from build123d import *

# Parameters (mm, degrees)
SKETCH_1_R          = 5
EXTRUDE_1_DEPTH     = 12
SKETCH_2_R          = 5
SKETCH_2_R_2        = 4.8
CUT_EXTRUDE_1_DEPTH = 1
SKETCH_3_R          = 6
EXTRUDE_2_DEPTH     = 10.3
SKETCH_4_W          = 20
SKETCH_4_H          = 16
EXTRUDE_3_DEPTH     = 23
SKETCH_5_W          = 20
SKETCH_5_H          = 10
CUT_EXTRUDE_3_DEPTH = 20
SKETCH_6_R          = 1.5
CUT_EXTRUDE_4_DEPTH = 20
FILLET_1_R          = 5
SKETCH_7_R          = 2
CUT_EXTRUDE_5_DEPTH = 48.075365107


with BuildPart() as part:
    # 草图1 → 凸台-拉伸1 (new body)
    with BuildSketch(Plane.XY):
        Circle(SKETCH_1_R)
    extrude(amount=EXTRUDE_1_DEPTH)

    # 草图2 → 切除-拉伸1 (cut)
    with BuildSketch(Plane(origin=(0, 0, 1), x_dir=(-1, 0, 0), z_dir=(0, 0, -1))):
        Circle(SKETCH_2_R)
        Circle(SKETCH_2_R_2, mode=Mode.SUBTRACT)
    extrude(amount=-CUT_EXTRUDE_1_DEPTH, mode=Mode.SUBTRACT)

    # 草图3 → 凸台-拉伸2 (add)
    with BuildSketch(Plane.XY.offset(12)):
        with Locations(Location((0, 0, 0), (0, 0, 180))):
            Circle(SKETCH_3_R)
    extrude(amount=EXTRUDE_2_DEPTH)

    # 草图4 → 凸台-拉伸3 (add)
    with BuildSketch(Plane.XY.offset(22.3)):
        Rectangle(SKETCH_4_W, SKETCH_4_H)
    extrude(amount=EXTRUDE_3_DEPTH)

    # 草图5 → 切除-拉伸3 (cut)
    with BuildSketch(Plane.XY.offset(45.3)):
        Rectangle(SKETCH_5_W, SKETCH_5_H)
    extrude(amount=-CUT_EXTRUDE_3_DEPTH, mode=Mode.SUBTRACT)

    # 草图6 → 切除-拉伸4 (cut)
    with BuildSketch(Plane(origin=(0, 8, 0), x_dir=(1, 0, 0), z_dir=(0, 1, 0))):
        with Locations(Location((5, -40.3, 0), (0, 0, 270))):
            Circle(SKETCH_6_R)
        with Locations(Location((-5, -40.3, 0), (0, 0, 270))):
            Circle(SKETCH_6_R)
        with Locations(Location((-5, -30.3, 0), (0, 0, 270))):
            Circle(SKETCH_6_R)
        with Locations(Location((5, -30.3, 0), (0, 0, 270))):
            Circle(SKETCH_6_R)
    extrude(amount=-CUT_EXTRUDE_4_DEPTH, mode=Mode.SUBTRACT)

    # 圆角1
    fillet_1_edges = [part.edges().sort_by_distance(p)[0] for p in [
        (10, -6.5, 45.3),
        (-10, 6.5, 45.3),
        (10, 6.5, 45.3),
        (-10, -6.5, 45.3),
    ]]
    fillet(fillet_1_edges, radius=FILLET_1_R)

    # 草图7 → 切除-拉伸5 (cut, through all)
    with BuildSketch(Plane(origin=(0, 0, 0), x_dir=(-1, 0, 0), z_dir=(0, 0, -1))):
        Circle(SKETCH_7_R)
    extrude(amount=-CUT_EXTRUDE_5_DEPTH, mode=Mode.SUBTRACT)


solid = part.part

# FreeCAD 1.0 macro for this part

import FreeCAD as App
import Part
import Sketcher
Q = App.Units.Quantity


def edges_at(feature, points):
    """Names of the edges that pass closest to the given points."""
    edges = feature.Shape.Edges
    near = lambda p: min(range(len(edges)), key=lambda i: edges[i].distToShape(Part.Vertex(*p))[0])
    return sorted({f"Edge{near(p) + 1}" for p in points})


def add_polygon(sketch, points):
    """Adds a closed chain of lines whose ends are joined by coincident constraints."""
    first, n = sketch.GeometryCount, len(points)
    for a, b in zip(points, points[1:] + points[:1]):
        sketch.addGeometry(Part.LineSegment(App.Vector(*a, 0), App.Vector(*b, 0)), False)
    for i in range(n):
        sketch.addConstraint(Sketcher.Constraint("Coincident", first + i, 2, first + (i + 1) % n, 1))

doc = App.newDocument("Part")
params = doc.addObject("Spreadsheet::Sheet", "Params")
for row, (alias, value) in enumerate([
    ("sketch1_diameter", "10 mm"),
    ("pad1_length", "12 mm"),
    ("sketch2_diameter", "10 mm"),
    ("sketch2_diameter2", "9.6 mm"),
    ("pocket1_length", "1 mm"),
    ("sketch3_diameter", "12 mm"),
    ("pad2_length", "10.3 mm"),
    ("sketch4_width", "20 mm"),
    ("sketch4_height", "16 mm"),
    ("pad3_length", "23 mm"),
    ("sketch5_width", "20 mm"),
    ("sketch5_height", "10 mm"),
    ("pocket2_length", "20 mm"),
    ("sketch6_diameter", "3 mm"),
    ("pocket3_length", "20 mm"),
    ("fillet_radius", "5 mm"),
    ("sketch7_diameter", "4 mm"),
], start=1):
    params.set(f"A{row}", alias)
    params.set(f"B{row}", "=" + value)
    params.setAlias(f"B{row}", alias)

body = doc.addObject("PartDesign::Body", "Body")

sketch1 = body.newObject("Sketcher::SketchObject", "Sketch")
sketch1.AttachmentSupport = (doc.getObject("XY_Plane"), [""])
sketch1.MapMode = "FlatFace"
sketch1.addGeometry(Part.Circle(App.Vector(0, 0, 0), App.Vector(0, 0, 1), 5), False)
sketch1.addConstraint([
    Sketcher.Constraint("Coincident", 0, 3, -1, 1),
    Sketcher.Constraint("Diameter", 0, Q("10 mm")),
])
sketch1.setExpression("Constraints[1]", "Params.sketch1_diameter")
pad1 = body.newObject("PartDesign::Pad", "Pad")
pad1.Profile = sketch1
pad1.setExpression("Length", "Params.pad1_length")

sketch2 = body.newObject("Sketcher::SketchObject", "Sketch001")
sketch2.AttachmentSupport = (doc.getObject("XY_Plane"), [""])
sketch2.MapMode = "FlatFace"
sketch2.AttachmentOffset = App.Placement(App.Vector(0, 0, 1), App.Rotation())
sketch2.addGeometry([
    Part.Circle(App.Vector(0, 0, 0), App.Vector(0, 0, 1), 5),
    Part.Circle(App.Vector(0, 0, 0), App.Vector(0, 0, 1), 4.8),
], False)
sketch2.addConstraint([
    Sketcher.Constraint("Coincident", 0, 3, -1, 1),
    Sketcher.Constraint("Coincident", 1, 3, -1, 1),
    Sketcher.Constraint("Diameter", 0, Q("10 mm")),
    Sketcher.Constraint("Diameter", 1, Q("9.6 mm")),
])
sketch2.setExpression("Constraints[2]", "Params.sketch2_diameter")
sketch2.setExpression("Constraints[3]", "Params.sketch2_diameter2")
pocket1 = body.newObject("PartDesign::Pocket", "Pocket")
pocket1.Profile = sketch2
pocket1.setExpression("Length", "Params.pocket1_length")
pocket1.Reversed = True

sketch3 = body.newObject("Sketcher::SketchObject", "Sketch002")
sketch3.AttachmentSupport = (doc.getObject("XY_Plane"), [""])
sketch3.MapMode = "FlatFace"
sketch3.AttachmentOffset = App.Placement(App.Vector(0, 0, 12), App.Rotation())
sketch3.addGeometry(Part.Circle(App.Vector(0, 0, 0), App.Vector(0, 0, 1), 6), False)
sketch3.addConstraint([
    Sketcher.Constraint("Coincident", 0, 3, -1, 1),
    Sketcher.Constraint("Diameter", 0, Q("12 mm")),
])
sketch3.setExpression("Constraints[1]", "Params.sketch3_diameter")
pad2 = body.newObject("PartDesign::Pad", "Pad001")
pad2.Profile = sketch3
pad2.setExpression("Length", "Params.pad2_length")

sketch4 = body.newObject("Sketcher::SketchObject", "Sketch003")
sketch4.AttachmentSupport = (doc.getObject("XY_Plane"), [""])
sketch4.MapMode = "FlatFace"
sketch4.AttachmentOffset = App.Placement(App.Vector(0, 0, 22.3), App.Rotation())
add_polygon(sketch4, [(-10, 8), (-10, -8), (10, -8), (10, 8)])
sketch4.addConstraint([
    Sketcher.Constraint("Vertical", 0),
    Sketcher.Constraint("Horizontal", 1),
    Sketcher.Constraint("Vertical", 2),
    Sketcher.Constraint("Horizontal", 3),
    Sketcher.Constraint("Symmetric", 0, 2, 2, 2, -1, 1),
    Sketcher.Constraint("DistanceX", 1, 1, 1, 2, Q("20 mm")),
    Sketcher.Constraint("DistanceY", 0, 2, 0, 1, Q("16 mm")),
])
sketch4.setExpression("Constraints[9]", "Params.sketch4_width")
sketch4.setExpression("Constraints[10]", "Params.sketch4_height")
pad3 = body.newObject("PartDesign::Pad", "Pad002")
pad3.Profile = sketch4
pad3.setExpression("Length", "Params.pad3_length")

sketch5 = body.newObject("Sketcher::SketchObject", "Sketch004")
sketch5.AttachmentSupport = (doc.getObject("XY_Plane"), [""])
sketch5.MapMode = "FlatFace"
sketch5.AttachmentOffset = App.Placement(App.Vector(0, 0, 45.3), App.Rotation())
add_polygon(sketch5, [(-10, 5), (-10, -5), (10, -5), (10, 5)])
sketch5.addConstraint([
    Sketcher.Constraint("Vertical", 0),
    Sketcher.Constraint("Horizontal", 1),
    Sketcher.Constraint("Vertical", 2),
    Sketcher.Constraint("Horizontal", 3),
    Sketcher.Constraint("Symmetric", 0, 2, 2, 2, -1, 1),
    Sketcher.Constraint("DistanceX", 1, 1, 1, 2, Q("20 mm")),
    Sketcher.Constraint("DistanceY", 0, 2, 0, 1, Q("10 mm")),
])
sketch5.setExpression("Constraints[9]", "Params.sketch5_width")
sketch5.setExpression("Constraints[10]", "Params.sketch5_height")
pocket2 = body.newObject("PartDesign::Pocket", "Pocket001")
pocket2.Profile = sketch5
pocket2.setExpression("Length", "Params.pocket2_length")

sketch6 = body.newObject("Sketcher::SketchObject", "Sketch005")
sketch6.AttachmentSupport = (doc.getObject("XZ_Plane"), [""])
sketch6.MapMode = "FlatFace"
sketch6.AttachmentOffset = App.Placement(App.Vector(0, 0, -8), App.Rotation())
sketch6.addGeometry([
    Part.Circle(App.Vector(5, 40.3, 0), App.Vector(0, 0, 1), 1.5),
    Part.Circle(App.Vector(-5, 40.3, 0), App.Vector(0, 0, 1), 1.5),
    Part.Circle(App.Vector(-5, 30.3, 0), App.Vector(0, 0, 1), 1.5),
    Part.Circle(App.Vector(5, 30.3, 0), App.Vector(0, 0, 1), 1.5),
], False)
sketch6.addConstraint([
    Sketcher.Constraint("Equal", 0, 1),
    Sketcher.Constraint("Equal", 1, 2),
    Sketcher.Constraint("Equal", 2, 3),
    Sketcher.Constraint("Symmetric", 0, 3, 1, 3, -2),
    Sketcher.Constraint("Symmetric", 2, 3, 3, 3, -2),
    Sketcher.Constraint("Vertical", 1, 3, 2, 3),
    Sketcher.Constraint("Diameter", 0, Q("3 mm")),
    Sketcher.Constraint("DistanceX", -1, 1, 0, 3, Q("5 mm")),
    Sketcher.Constraint("DistanceY", 2, 3, 1, 3, Q("10 mm")),
    Sketcher.Constraint("DistanceY", -1, 1, 0, 3, Q("40.3 mm")),
])
sketch6.setExpression("Constraints[6]", "Params.sketch6_diameter")
pocket3 = body.newObject("PartDesign::Pocket", "Pocket002")
pocket3.Profile = sketch6
pocket3.setExpression("Length", "Params.pocket3_length")
pocket3.Reversed = True
doc.recompute()

fillet = body.newObject("PartDesign::Fillet", "Fillet")
fillet.Base = (pocket3, edges_at(pocket3, [
    (10, -6.5, 45.3),
    (-10, 6.5, 45.3),
    (10, 6.5, 45.3),
    (-10, -6.5, 45.3),
]))
fillet.setExpression("Radius", "Params.fillet_radius")

sketch7 = body.newObject("Sketcher::SketchObject", "Sketch006")
sketch7.AttachmentSupport = (doc.getObject("XY_Plane"), [""])
sketch7.MapMode = "FlatFace"
sketch7.addGeometry(Part.Circle(App.Vector(0, 0, 0), App.Vector(0, 0, 1), 2), False)
sketch7.addConstraint([
    Sketcher.Constraint("Coincident", 0, 3, -1, 1),
    Sketcher.Constraint("Diameter", 0, Q("4 mm")),
])
sketch7.setExpression("Constraints[1]", "Params.sketch7_diameter")
pocket4 = body.newObject("PartDesign::Pocket", "Pocket003")
pocket4.Profile = sketch7
pocket4.Type = "ThroughAll"
pocket4.Reversed = True

doc.recompute()
